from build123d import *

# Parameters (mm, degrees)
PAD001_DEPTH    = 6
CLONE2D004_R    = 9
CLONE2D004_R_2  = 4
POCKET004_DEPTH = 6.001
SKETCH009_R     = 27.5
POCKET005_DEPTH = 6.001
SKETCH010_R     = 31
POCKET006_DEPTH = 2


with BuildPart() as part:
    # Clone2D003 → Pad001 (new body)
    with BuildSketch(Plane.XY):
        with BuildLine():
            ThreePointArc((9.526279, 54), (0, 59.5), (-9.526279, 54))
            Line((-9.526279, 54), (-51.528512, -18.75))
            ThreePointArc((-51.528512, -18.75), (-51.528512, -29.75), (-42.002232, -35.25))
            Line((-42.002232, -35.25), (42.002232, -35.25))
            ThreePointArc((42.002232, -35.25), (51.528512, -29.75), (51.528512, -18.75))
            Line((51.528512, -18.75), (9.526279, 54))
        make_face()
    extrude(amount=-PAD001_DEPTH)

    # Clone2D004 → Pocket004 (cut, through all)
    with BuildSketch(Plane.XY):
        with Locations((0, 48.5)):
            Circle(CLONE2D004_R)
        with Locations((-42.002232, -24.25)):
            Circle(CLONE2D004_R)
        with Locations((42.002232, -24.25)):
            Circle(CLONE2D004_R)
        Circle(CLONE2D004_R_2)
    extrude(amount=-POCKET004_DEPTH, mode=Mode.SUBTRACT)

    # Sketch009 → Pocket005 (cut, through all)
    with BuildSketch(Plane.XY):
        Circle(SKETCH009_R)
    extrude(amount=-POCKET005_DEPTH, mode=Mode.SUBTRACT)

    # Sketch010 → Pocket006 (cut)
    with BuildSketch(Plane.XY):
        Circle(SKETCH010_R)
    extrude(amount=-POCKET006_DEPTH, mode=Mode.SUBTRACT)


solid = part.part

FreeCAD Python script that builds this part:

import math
import FreeCAD as App
import Part
import Sketcher
from FreeCAD import Vector
Q = App.Units.Quantity

doc = App.newDocument("Part")
body = doc.addObject("PartDesign::Body", "Body")

sketch1 = body.newObject("Sketcher::SketchObject", "Sketch")
sketch1.AttachmentSupport = (doc.getObject("XY_Plane"), [""])
sketch1.MapMode = "FlatFace"
sketch1.addGeometry([
    Part.ArcOfCircle(Part.Circle(Vector(0, 49, 0), Vector(0, 0, 1), 11), math.radians(30), math.radians(150)),
    Part.LineSegment(Vector(-10, 54, 0), Vector(-52, -19, 0)),
    Part.ArcOfCircle(Part.Circle(Vector(-42, -24, 0), Vector(0, 0, 1), 11), math.radians(150), math.radians(270)),
    Part.LineSegment(Vector(-42, -35, 0), Vector(42, -35, 0)),
    Part.ArcOfCircle(Part.Circle(Vector(42, -24, 0), Vector(0, 0, 1), 11), math.radians(-90), math.radians(30)),
    Part.LineSegment(Vector(52, -19, 0), Vector(10, 54, 0)),
], False)
sketch1.addConstraint([
    Sketcher.Constraint("Tangent", 0, 2, 1, 1),
    Sketcher.Constraint("Tangent", 1, 2, 2, 1),
    Sketcher.Constraint("Tangent", 2, 2, 3, 1),
    Sketcher.Constraint("Tangent", 3, 2, 4, 1),
    Sketcher.Constraint("Tangent", 4, 2, 5, 1),
    Sketcher.Constraint("Tangent", 5, 2, 0, 1),
    Sketcher.Constraint("Horizontal", 3),
    Sketcher.Constraint("Equal", 0, 2),
    Sketcher.Constraint("Equal", 2, 4),
    Sketcher.Constraint("Symmetric", 1, 2, 4, 2, -2),
    Sketcher.Constraint("Radius", 0, 10.999999),
    Sketcher.Constraint("Angle", 1, Q("-120.000001 deg")),
    Sketcher.Constraint("DistanceY", -1, 1, 0, 2, 54.0),
    Sketcher.Constraint("DistanceY", 2, 3, -1, 1, 24.25),
])
pad1 = body.newObject("PartDesign::Pad", "Pad")
pad1.Profile = sketch1
pad1.Length = 6
pad1.Reversed = True

sketch2 = body.newObject("Sketcher::SketchObject", "Sketch001")
sketch2.AttachmentSupport = (doc.getObject("XY_Plane"), [""])
sketch2.MapMode = "FlatFace"
sketch2.addGeometry([
    Part.Circle(Vector(0, 48.5, 0), Vector(0, 0, 1), 9),
    Part.Circle(Vector(-42, -24.2, 0), Vector(0, 0, 1), 9),
    Part.Circle(Vector(42, -24.2, 0), Vector(0, 0, 1), 9),
    Part.Circle(Vector(0, 0, 0), Vector(0, 0, 1), 4),
], False)
sketch2.addConstraint([
    Sketcher.Constraint("Coincident", 3, 3, -1, 1),
    Sketcher.Constraint("Equal", 0, 1),
    Sketcher.Constraint("Equal", 1, 2),
    Sketcher.Constraint("Symmetric", 1, 3, 2, 3, -2),
    Sketcher.Constraint("PointOnObject", 0, 3, -2),
    Sketcher.Constraint("Diameter", 0, 18.0),
    Sketcher.Constraint("Diameter", 3, 8.0),
    Sketcher.Constraint("DistanceY", -1, 1, 0, 3, 48.5),
    Sketcher.Constraint("DistanceY", 1, 3, -1, 1, 24.25),
    Sketcher.Constraint("DistanceX", 1, 3, -1, 1, 42.002232),
])
pocket1 = body.newObject("PartDesign::Pocket", "Pocket")
pocket1.Profile = sketch2
pocket1.Type = "ThroughAll"

sketch3 = body.newObject("Sketcher::SketchObject", "Sketch002")
sketch3.AttachmentSupport = (doc.getObject("XY_Plane"), [""])
sketch3.MapMode = "FlatFace"
sketch3.addGeometry(Part.Circle(Vector(0, 0, 0), Vector(0, 0, 1), 28), False)
sketch3.addConstraint([
    Sketcher.Constraint("Coincident", 0, 3, -1, 1),
    Sketcher.Constraint("Diameter", 0, 55.0),
])
pocket2 = body.newObject("PartDesign::Pocket", "Pocket001")
pocket2.Profile = sketch3
pocket2.Type = "ThroughAll"

sketch4 = body.newObject("Sketcher::SketchObject", "Sketch003")
sketch4.AttachmentSupport = (doc.getObject("XY_Plane"), [""])
sketch4.MapMode = "FlatFace"
sketch4.addGeometry(Part.Circle(Vector(0, 0, 0), Vector(0, 0, 1), 31), False)
sketch4.addConstraint([
    Sketcher.Constraint("Coincident", 0, 3, -1, 1),
    Sketcher.Constraint("Diameter", 0, 62.0),
])
pocket3 = body.newObject("PartDesign::Pocket", "Pocket002")
pocket3.Profile = sketch4
pocket3.Length = 2

doc.recompute()
